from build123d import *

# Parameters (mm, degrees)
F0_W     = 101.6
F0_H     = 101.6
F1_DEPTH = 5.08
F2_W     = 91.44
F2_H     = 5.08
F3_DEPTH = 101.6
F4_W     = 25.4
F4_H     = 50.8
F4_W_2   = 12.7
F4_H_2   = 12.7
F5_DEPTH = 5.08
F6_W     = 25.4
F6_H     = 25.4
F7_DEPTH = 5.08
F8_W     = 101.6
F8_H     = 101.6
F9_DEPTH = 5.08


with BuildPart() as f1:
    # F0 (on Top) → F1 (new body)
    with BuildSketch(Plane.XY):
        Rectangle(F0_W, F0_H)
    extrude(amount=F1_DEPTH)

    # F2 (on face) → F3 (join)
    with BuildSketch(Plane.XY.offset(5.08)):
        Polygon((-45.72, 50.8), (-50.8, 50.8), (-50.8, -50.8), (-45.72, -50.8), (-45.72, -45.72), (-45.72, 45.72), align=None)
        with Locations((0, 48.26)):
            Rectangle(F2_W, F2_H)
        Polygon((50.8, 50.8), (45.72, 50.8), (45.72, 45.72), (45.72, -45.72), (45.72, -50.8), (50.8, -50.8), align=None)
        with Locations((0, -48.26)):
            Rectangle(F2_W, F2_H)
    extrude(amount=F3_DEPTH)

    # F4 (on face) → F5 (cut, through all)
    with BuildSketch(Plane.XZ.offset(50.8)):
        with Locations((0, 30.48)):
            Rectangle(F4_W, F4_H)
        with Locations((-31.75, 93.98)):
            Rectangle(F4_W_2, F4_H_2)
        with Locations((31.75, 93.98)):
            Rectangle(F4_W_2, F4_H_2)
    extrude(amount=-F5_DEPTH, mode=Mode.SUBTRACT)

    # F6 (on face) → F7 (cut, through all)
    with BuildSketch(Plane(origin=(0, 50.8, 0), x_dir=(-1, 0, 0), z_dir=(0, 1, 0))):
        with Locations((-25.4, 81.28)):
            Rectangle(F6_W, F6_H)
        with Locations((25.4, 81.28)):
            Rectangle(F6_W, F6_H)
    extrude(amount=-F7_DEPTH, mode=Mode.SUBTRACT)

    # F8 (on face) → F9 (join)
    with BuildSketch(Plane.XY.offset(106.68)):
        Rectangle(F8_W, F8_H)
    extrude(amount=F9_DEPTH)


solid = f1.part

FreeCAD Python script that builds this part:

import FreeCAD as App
import Part
import Sketcher
Q = App.Units.Quantity


def add_polygon(sketch, points):
    """Adds a closed chain of lines whose ends are joined by coincident constraints."""
    first, n = sketch.GeometryCount, len(points)
    for a, b in zip(points, points[1:] + points[:1]):
        sketch.addGeometry(Part.LineSegment(App.Vector(*a, 0), App.Vector(*b, 0)), False)
    for i in range(n):
        sketch.addConstraint(Sketcher.Constraint("Coincident", first + i, 2, first + (i + 1) % n, 1))

doc = App.newDocument("Part")
body = doc.addObject("PartDesign::Body", "Body")

# Sketch on XY plane
sketch1 = body.newObject("Sketcher::SketchObject", "Sketch")
sketch1.AttachmentSupport = (doc.getObject("XY_Plane"), [""])
sketch1.MapMode = "FlatFace"
add_polygon(sketch1, [(-51, 51), (-51, -51), (51, -51), (51, 51)])  # lines 0-3
sketch1.addConstraint([
    Sketcher.Constraint("Vertical", 0),
    Sketcher.Constraint("Horizontal", 1),
    Sketcher.Constraint("Vertical", 2),
    Sketcher.Constraint("Horizontal", 3),
    Sketcher.Constraint("Symmetric", 0, 2, 2, 2, -1, 1),
    Sketcher.Constraint("Equal", 3, 0),
    Sketcher.Constraint("DistanceX", 1, 1, 1, 2, Q("4 in")),
])
pad1 = body.newObject("PartDesign::Pad", "Pad")
pad1.Profile = sketch1
pad1.Length = Q("0.2 in")

# Sketch on XY plane
sketch2 = body.newObject("Sketcher::SketchObject", "Sketch001")
sketch2.AttachmentSupport = (doc.getObject("XY_Plane"), [""])
sketch2.MapMode = "FlatFace"
sketch2.AttachmentOffset = App.Placement(App.Vector(0, 0, 0.2 * 25.4), App.Rotation())
add_polygon(sketch2, [(-51, 51), (-51, -51), (51, -51), (51, 51)])  # lines 0-3
add_polygon(sketch2, [(-46, -46), (-46, 46), (46, 46), (46, -46)])  # lines 4-7
sketch2.addConstraint([
    Sketcher.Constraint("Vertical", 0),
    Sketcher.Constraint("Horizontal", 1),
    Sketcher.Constraint("Vertical", 2),
    Sketcher.Constraint("Horizontal", 3),
    Sketcher.Constraint("Vertical", 4),
    Sketcher.Constraint("Horizontal", 5),
    Sketcher.Constraint("Vertical", 6),
    Sketcher.Constraint("Horizontal", 7),
    Sketcher.Constraint("Symmetric", 0, 2, 2, 2, -1, 1),
    Sketcher.Constraint("Symmetric", 4, 2, 6, 2, -1, 1),
    Sketcher.Constraint("Equal", 3, 0),
    Sketcher.Constraint("Equal", 7, 4),
    Sketcher.Constraint("DistanceX", 1, 1, 1, 2, Q("4 in")),
    Sketcher.Constraint("DistanceX", 5, 1, 5, 2, Q("3.6 in")),
])
pad2 = body.newObject("PartDesign::Pad", "Pad001")
pad2.Profile = sketch2
pad2.Length = Q("4 in")

# Sketch on XZ plane
sketch3 = body.newObject("Sketcher::SketchObject", "Sketch002")
sketch3.AttachmentSupport = (doc.getObject("XZ_Plane"), [""])
sketch3.MapMode = "FlatFace"
sketch3.AttachmentOffset = App.Placement(App.Vector(0, 0, 2 * 25.4), App.Rotation())
add_polygon(sketch3, [(-13, 56), (-13, 5), (13, 5), (13, 56)])  # lines 0-3
add_polygon(sketch3, [(-38, 100), (-38, 88), (-25, 88), (-25, 100)])  # lines 4-7
add_polygon(sketch3, [(25, 100), (25, 88), (38, 88), (38, 100)])  # lines 8-11
sketch3.addConstraint([
    Sketcher.Constraint("Vertical", 0),
    Sketcher.Constraint("Horizontal", 1),
    Sketcher.Constraint("Vertical", 2),
    Sketcher.Constraint("Horizontal", 3),
    Sketcher.Constraint("Vertical", 4),
    Sketcher.Constraint("Horizontal", 5),
    Sketcher.Constraint("Vertical", 6),
    Sketcher.Constraint("Horizontal", 7),
    Sketcher.Constraint("Vertical", 8),
    Sketcher.Constraint("Horizontal", 9),
    Sketcher.Constraint("Vertical", 10),
    Sketcher.Constraint("Horizontal", 11),
    Sketcher.Constraint("Symmetric", 5, 2, 8, 2, -2),
    Sketcher.Constraint("Symmetric", 7, 2, 10, 2, -2),
    Sketcher.Constraint("Equal", 11, 4),
    Sketcher.Constraint("DistanceX", 1, 1, 1, 2, Q("1 in")),
    Sketcher.Constraint("DistanceY", 0, 2, 0, 1, Q("2 in")),
    Sketcher.Constraint("DistanceX", 5, 1, 5, 2, Q("0.5 in")),
    Sketcher.Constraint("DistanceX", 5, 2, -1, 1, Q("1 in")),
    Sketcher.Constraint("DistanceX", 4, 2, 3, 2, Q("1 in")),
    Sketcher.Constraint("DistanceY", -1, 1, 0, 2, Q("0.2 in")),
    Sketcher.Constraint("DistanceY", -1, 1, 4, 2, Q("3.45 in")),
])
pocket1 = body.newObject("PartDesign::Pocket", "Pocket")
pocket1.Profile = sketch3
pocket1.Length = Q("0.2 in")

# Sketch on XZ plane
sketch4 = body.newObject("Sketcher::SketchObject", "Sketch003")
sketch4.AttachmentSupport = (doc.getObject("XZ_Plane"), [""])
sketch4.MapMode = "FlatFace"
sketch4.AttachmentOffset = App.Placement(App.Vector(0, 0, -2 * 25.4), App.Rotation())
add_polygon(sketch4, [(38, 94), (38, 69), (13, 69), (13, 94)])  # lines 0-3
add_polygon(sketch4, [(-13, 94), (-13, 69), (-38, 69), (-38, 94)])  # lines 4-7
sketch4.addConstraint([
    Sketcher.Constraint("Vertical", 0),
    Sketcher.Constraint("Horizontal", 1),
    Sketcher.Constraint("Vertical", 2),
    Sketcher.Constraint("Horizontal", 3),
    Sketcher.Constraint("Vertical", 4),
    Sketcher.Constraint("Horizontal", 5),
    Sketcher.Constraint("Vertical", 6),
    Sketcher.Constraint("Horizontal", 7),
    Sketcher.Constraint("Symmetric", 1, 2, 4, 2, -2),
    Sketcher.Constraint("Symmetric", 3, 2, 6, 2, -2),
    Sketcher.Constraint("Equal", 7, 0),
    Sketcher.Constraint("DistanceX", 1, 2, 1, 1, Q("1 in")),
    Sketcher.Constraint("DistanceX", 4, 2, 1, 2, Q("1 in")),
    Sketcher.Constraint("DistanceY", -1, 1, 0, 2, Q("2.7 in")),
])
pocket2 = body.newObject("PartDesign::Pocket", "Pocket001")
pocket2.Profile = sketch4
pocket2.Length = Q("0.2 in")
pocket2.Reversed = True

# Sketch on XY plane
sketch5 = body.newObject("Sketcher::SketchObject", "Sketch004")
sketch5.AttachmentSupport = (doc.getObject("XY_Plane"), [""])
sketch5.MapMode = "FlatFace"
sketch5.AttachmentOffset = App.Placement(App.Vector(0, 0, 4.2 * 25.4), App.Rotation())
add_polygon(sketch5, [(-51, 51), (-51, -51), (51, -51), (51, 51)])  # lines 0-3
sketch5.addConstraint([
    Sketcher.Constraint("Vertical", 0),
    Sketcher.Constraint("Horizontal", 1),
    Sketcher.Constraint("Vertical", 2),
    Sketcher.Constraint("Horizontal", 3),
    Sketcher.Constraint("Symmetric", 0, 2, 2, 2, -1, 1),
    Sketcher.Constraint("Equal", 3, 0),
    Sketcher.Constraint("DistanceX", 1, 1, 1, 2, Q("4 in")),
])
pad3 = body.newObject("PartDesign::Pad", "Pad002")
pad3.Profile = sketch5
pad3.Length = Q("0.2 in")

doc.recompute()
